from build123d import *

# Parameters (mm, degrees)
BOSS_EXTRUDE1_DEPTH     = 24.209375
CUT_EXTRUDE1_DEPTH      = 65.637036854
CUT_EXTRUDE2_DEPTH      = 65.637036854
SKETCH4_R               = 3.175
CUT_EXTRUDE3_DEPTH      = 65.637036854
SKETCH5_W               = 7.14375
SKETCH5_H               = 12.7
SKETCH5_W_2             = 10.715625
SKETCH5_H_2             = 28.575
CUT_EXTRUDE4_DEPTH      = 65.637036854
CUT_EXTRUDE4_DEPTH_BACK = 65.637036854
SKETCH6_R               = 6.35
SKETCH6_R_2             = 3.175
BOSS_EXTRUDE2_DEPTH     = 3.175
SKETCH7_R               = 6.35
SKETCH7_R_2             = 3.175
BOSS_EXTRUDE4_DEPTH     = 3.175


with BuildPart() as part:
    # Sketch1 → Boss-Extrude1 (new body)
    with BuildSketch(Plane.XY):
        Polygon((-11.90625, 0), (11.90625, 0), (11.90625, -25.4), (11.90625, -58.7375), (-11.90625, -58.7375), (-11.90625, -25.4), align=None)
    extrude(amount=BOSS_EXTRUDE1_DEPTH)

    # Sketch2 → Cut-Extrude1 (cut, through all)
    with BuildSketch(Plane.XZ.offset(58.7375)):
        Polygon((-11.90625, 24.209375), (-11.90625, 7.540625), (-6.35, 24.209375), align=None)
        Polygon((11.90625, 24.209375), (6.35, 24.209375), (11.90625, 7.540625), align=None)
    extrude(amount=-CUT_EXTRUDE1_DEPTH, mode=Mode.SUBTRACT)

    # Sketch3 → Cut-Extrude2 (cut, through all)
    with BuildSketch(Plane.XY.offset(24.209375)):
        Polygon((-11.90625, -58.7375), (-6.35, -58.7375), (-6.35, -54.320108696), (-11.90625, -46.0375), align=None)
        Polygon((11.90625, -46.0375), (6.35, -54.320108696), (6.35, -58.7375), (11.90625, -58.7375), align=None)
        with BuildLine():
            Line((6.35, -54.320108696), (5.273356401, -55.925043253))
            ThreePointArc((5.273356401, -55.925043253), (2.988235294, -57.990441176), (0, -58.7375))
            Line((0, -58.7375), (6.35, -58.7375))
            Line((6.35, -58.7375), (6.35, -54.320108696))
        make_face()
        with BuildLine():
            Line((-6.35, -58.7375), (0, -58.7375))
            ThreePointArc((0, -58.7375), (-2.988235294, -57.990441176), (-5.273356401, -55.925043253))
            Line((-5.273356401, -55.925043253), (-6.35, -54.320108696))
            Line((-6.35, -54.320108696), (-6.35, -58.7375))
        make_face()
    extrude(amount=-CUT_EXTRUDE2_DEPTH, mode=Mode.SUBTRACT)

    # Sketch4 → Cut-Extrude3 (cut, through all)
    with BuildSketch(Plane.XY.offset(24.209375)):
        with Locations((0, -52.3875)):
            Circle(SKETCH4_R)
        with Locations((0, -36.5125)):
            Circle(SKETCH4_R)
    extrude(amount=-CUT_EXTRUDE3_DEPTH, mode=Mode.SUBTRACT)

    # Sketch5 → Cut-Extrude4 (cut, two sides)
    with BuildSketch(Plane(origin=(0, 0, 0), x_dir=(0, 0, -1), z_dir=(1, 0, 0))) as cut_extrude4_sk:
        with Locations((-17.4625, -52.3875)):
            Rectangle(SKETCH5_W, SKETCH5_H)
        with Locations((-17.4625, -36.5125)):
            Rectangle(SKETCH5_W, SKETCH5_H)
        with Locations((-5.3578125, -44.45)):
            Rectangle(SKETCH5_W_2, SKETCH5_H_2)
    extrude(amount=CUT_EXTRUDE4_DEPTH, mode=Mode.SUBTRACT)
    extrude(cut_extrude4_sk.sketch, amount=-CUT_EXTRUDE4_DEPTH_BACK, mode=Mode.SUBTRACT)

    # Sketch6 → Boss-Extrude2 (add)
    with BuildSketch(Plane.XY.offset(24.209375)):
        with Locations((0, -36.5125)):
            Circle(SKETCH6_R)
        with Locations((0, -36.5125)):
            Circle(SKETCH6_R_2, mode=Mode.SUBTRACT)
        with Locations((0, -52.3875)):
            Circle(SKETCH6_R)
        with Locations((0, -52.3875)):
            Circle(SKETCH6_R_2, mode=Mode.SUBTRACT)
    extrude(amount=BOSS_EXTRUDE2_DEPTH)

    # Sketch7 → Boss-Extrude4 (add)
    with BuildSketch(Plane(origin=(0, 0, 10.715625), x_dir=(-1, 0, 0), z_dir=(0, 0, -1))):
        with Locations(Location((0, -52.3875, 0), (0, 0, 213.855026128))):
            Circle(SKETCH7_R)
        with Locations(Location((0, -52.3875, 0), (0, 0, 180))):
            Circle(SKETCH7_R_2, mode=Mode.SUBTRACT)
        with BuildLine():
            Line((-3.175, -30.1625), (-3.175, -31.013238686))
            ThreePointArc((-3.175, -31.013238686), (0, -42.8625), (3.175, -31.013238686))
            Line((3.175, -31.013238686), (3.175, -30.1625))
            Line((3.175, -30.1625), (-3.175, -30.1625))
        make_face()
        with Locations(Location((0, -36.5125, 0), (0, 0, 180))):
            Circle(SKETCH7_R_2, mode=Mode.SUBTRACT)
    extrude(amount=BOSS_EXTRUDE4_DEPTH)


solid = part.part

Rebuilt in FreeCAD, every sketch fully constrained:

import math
import FreeCAD as App
import Part
import Sketcher
Q = App.Units.Quantity

doc = App.newDocument("Part")
params = doc.addObject("Spreadsheet::Sheet", "Params")
for row, (alias, value) in enumerate([
    ("sketch1_width", "0.9375 in"),
    ("sketch1_height", "2.3125 in"),
    ("pad1_length", "0.953125 in"),
    ("sketch2_width", "0.21875 in"),
    ("sketch2_height", "0.65625 in"),
    ("sketch3_radius", "0.25 in"),
    ("sketch3_height", "0.5 in"),
    ("sketch3_width", "0.46875 in"),
    ("sketch4_diameter", "0.25 in"),
    ("sketch5_width", "0.5 in"),
    ("sketch5_width2", "1.125 in"),
    ("sketch5_height", "0.28125 in"),
    ("sketch5_height2", "0.421875 in"),
    ("sketch6_diameter", "0.5 in"),
    ("sketch6_diameter2", "0.25 in"),
    ("pad2_length", "0.125 in"),
    ("sketch7_diameter", "0.5 in"),
    ("sketch7_diameter2", "0.25 in"),
    ("sketch7_width", "0.25 in"),
    ("pad3_length", "0.125 in"),
], start=1):
    params.set(f"A{row}", alias)
    params.set(f"B{row}", "=" + value)
    params.setAlias(f"B{row}", alias)

body = doc.addObject("PartDesign::Body", "Body")

# Sketch on XY plane
sketch1 = body.newObject("Sketcher::SketchObject", "Sketch")
sketch1.AttachmentSupport = (doc.getObject("XY_Plane"), [""])
sketch1.MapMode = "FlatFace"
sketch1.addGeometry([
    Part.LineSegment(App.Vector(12, 0, 0), App.Vector(-12, 0, 0)),
    Part.LineSegment(App.Vector(-12, 0, 0), App.Vector(-12, -59, 0)),
    Part.LineSegment(App.Vector(-12, -59, 0), App.Vector(12, -59, 0)),
    Part.LineSegment(App.Vector(12, -59, 0), App.Vector(12, 0, 0)),
], False)
sketch1.addConstraint([
    Sketcher.Constraint("Coincident", 0, 2, 1, 1),
    Sketcher.Constraint("Coincident", 1, 2, 2, 1),
    Sketcher.Constraint("Coincident", 2, 2, 3, 1),
    Sketcher.Constraint("Coincident", 3, 2, 0, 1),
    Sketcher.Constraint("Horizontal", 0),
    Sketcher.Constraint("Vertical", 1),
    Sketcher.Constraint("Horizontal", 2),
    Sketcher.Constraint("Vertical", 3),
    Sketcher.Constraint("Symmetric", 0, 2, 3, 2, -1, 1),
    Sketcher.Constraint("DistanceX", 0, 2, 0, 1, Q("0.9375 in")),
    Sketcher.Constraint("DistanceY", 1, 2, 1, 1, Q("2.3125 in")),
])
sketch1.setExpression("Constraints[9]", "Params.sketch1_width")
sketch1.setExpression("Constraints[10]", "Params.sketch1_height")
pad1 = body.newObject("PartDesign::Pad", "Pad")
pad1.Profile = sketch1
pad1.setExpression("Length", "Params.pad1_length")

# Sketch on XZ plane
sketch2 = body.newObject("Sketcher::SketchObject", "Sketch001")
sketch2.AttachmentSupport = (doc.getObject("XZ_Plane"), [""])
sketch2.MapMode = "FlatFace"
sketch2.AttachmentOffset = App.Placement(App.Vector(0, 0, 2.3125 * 25.4), App.Rotation())
sketch2.addGeometry([
    Part.LineSegment(App.Vector(-12, 24, 0), App.Vector(-12, 8, 0)),  # 0
    Part.LineSegment(App.Vector(-12, 8, 0), App.Vector(-6, 24, 0)),  # 1
    Part.LineSegment(App.Vector(-6, 24, 0), App.Vector(-12, 24, 0)),  # 2
    Part.LineSegment(App.Vector(12, 24, 0), App.Vector(6, 24, 0)),  # 3
    Part.LineSegment(App.Vector(6, 24, 0), App.Vector(12, 8, 0)),  # 4
    Part.LineSegment(App.Vector(12, 8, 0), App.Vector(12, 24, 0)),  # 5
], False)
sketch2.addConstraint([
    Sketcher.Constraint("Coincident", 0, 2, 1, 1),
    Sketcher.Constraint("Coincident", 1, 2, 2, 1),
    Sketcher.Constraint("Coincident", 2, 2, 0, 1),
    Sketcher.Constraint("Coincident", 3, 2, 4, 1),
    Sketcher.Constraint("Coincident", 4, 2, 5, 1),
    Sketcher.Constraint("Coincident", 5, 2, 3, 1),
    Sketcher.Constraint("Vertical", 0),
    Sketcher.Constraint("Horizontal", 2),
    Sketcher.Constraint("Horizontal", 3),
    Sketcher.Constraint("Vertical", 5),
    Sketcher.Constraint("Symmetric", 1, 2, 3, 2, -2),
    Sketcher.Constraint("Symmetric", 0, 2, 4, 2, -2),
    Sketcher.Constraint("DistanceX", 1, 2, 3, 2, Q("0.5 in")),
    Sketcher.Constraint("DistanceX", 2, 2, 2, 1, Q("0.21875 in")),
    Sketcher.Constraint("DistanceY", 0, 2, 0, 1, Q("0.65625 in")),
    Sketcher.Constraint("DistanceY", -1, 1, 0, 2, Q("0.296875 in")),
])
sketch2.setExpression("Constraints[13]", "Params.sketch2_width")
sketch2.setExpression("Constraints[14]", "Params.sketch2_height")
pocket1 = body.newObject("PartDesign::Pocket", "Pocket")
pocket1.Profile = sketch2
pocket1.Type = "ThroughAll"

# Sketch on XY plane
sketch3 = body.newObject("Sketcher::SketchObject", "Sketch002")
sketch3.AttachmentSupport = (doc.getObject("XY_Plane"), [""])
sketch3.MapMode = "FlatFace"
sketch3.AttachmentOffset = App.Placement(App.Vector(0, 0, 0.953125 * 25.4), App.Rotation())
sketch3.addGeometry([
    Part.LineSegment(App.Vector(-11.9, -58.7, 0), App.Vector(0, -58.7, 0)),  # 0
    Part.ArcOfCircle(Part.Circle(App.Vector(0, -52.4, 0), App.Vector(0, 0, 1), 6.4), math.radians(-146), math.radians(-90)),  # 1
    Part.LineSegment(App.Vector(-5.3, -55.9, 0), App.Vector(-6.3, -54.3, 0)),  # 2
    Part.LineSegment(App.Vector(-6.3, -54.3, 0), App.Vector(-11.9, -46, 0)),  # 3
    Part.LineSegment(App.Vector(-11.9, -46, 0), App.Vector(-11.9, -58.7, 0)),  # 4
    Part.LineSegment(App.Vector(11.9, -46, 0), App.Vector(6.3, -54.3, 0)),  # 5
    Part.LineSegment(App.Vector(6.3, -54.3, 0), App.Vector(5.3, -55.9, 0)),  # 6
    Part.ArcOfCircle(Part.Circle(App.Vector(0, -52.4, 0), App.Vector(0, 0, 1), 6.4), math.radians(-90), math.radians(-34)),  # 7
    Part.LineSegment(App.Vector(0, -58.7, 0), App.Vector(11.9, -58.7, 0)),  # 8
    Part.LineSegment(App.Vector(11.9, -58.7, 0), App.Vector(11.9, -46, 0)),  # 9
], False)
sketch3.addConstraint([
    Sketcher.Constraint("Tangent", 0, 2, 1, 2),
    Sketcher.Constraint("Tangent", 1, 1, 2, 1),
    Sketcher.Constraint("Coincident", 2, 2, 3, 1),
    Sketcher.Constraint("Coincident", 3, 2, 4, 1),
    Sketcher.Constraint("Coincident", 4, 2, 0, 1),
    Sketcher.Constraint("Coincident", 5, 2, 6, 1),
    Sketcher.Constraint("Tangent", 6, 2, 7, 2),
    Sketcher.Constraint("Tangent", 7, 1, 8, 1),
    Sketcher.Constraint("Coincident", 8, 2, 9, 1),
    Sketcher.Constraint("Coincident", 9, 2, 5, 1),
    Sketcher.Constraint("Horizontal", 0),
    Sketcher.Constraint("Vertical", 4),
    Sketcher.Constraint("Horizontal", 8),
    Sketcher.Constraint("Vertical", 9),
    Sketcher.Constraint("Coincident", 7, 3, 1, 3),
    Sketcher.Constraint("Equal", 1, 7),
    Sketcher.Constraint("Symmetric", 2, 2, 5, 2, -2),
    Sketcher.Constraint("Symmetric", 3, 2, 9, 2, -2),
    Sketcher.Constraint("PointOnObject", 1, 3, -2),
    Sketcher.Constraint("Parallel", 2, 3),
    Sketcher.Constraint("Radius", 1, Q("0.25 in")),
    Sketcher.Constraint("DistanceY", 4, 2, 4, 1, Q("0.5 in")),
    Sketcher.Constraint("DistanceX", 2, 2, 5, 2, Q("0.5 in")),
    Sketcher.Constraint("DistanceX", 0, 1, 0, 2, Q("0.46875 in")),
    Sketcher.Constraint("DistanceY", 1, 3, -1, 1, Q("2.0625 in")),
])
sketch3.setExpression("Constraints[20]", "Params.sketch3_radius")
sketch3.setExpression("Constraints[21]", "Params.sketch3_height")
sketch3.setExpression("Constraints[23]", "Params.sketch3_width")
pocket2 = body.newObject("PartDesign::Pocket", "Pocket001")
pocket2.Profile = sketch3
pocket2.Type = "ThroughAll"

# Sketch on XY plane
sketch4 = body.newObject("Sketcher::SketchObject", "Sketch003")
sketch4.AttachmentSupport = (doc.getObject("XY_Plane"), [""])
sketch4.MapMode = "FlatFace"
sketch4.AttachmentOffset = App.Placement(App.Vector(0, 0, 0.953125 * 25.4), App.Rotation())
sketch4.addGeometry([
    Part.Circle(App.Vector(0, -52.4, 0), App.Vector(0, 0, 1), 3.2),
    Part.Circle(App.Vector(0, -36.5, 0), App.Vector(0, 0, 1), 3.2),
], False)
sketch4.addConstraint([
    Sketcher.Constraint("Equal", 0, 1),
    Sketcher.Constraint("PointOnObject", 0, 3, -2),
    Sketcher.Constraint("PointOnObject", 1, 3, -2),
    Sketcher.Constraint("Diameter", 0, Q("0.25 in")),
    Sketcher.Constraint("DistanceY", 0, 3, -1, 1, Q("2.0625 in")),
    Sketcher.Constraint("DistanceY", 1, 3, -1, 1, Q("1.4375 in")),
])
sketch4.setExpression("Constraints[3]", "Params.sketch4_diameter")
pocket3 = body.newObject("PartDesign::Pocket", "Pocket002")
pocket3.Profile = sketch4
pocket3.Type = "ThroughAll"

# Sketch on YZ plane
sketch5 = body.newObject("Sketcher::SketchObject", "Sketch004")
sketch5.AttachmentSupport = (doc.getObject("YZ_Plane"), [""])
sketch5.MapMode = "FlatFace"
sketch5.addGeometry([
    Part.LineSegment(App.Vector(-46, 21, 0), App.Vector(-59, 21, 0)),  # 0
    Part.LineSegment(App.Vector(-59, 21, 0), App.Vector(-59, 14, 0)),  # 1
    Part.LineSegment(App.Vector(-59, 14, 0), App.Vector(-46, 14, 0)),  # 2
    Part.LineSegment(App.Vector(-46, 14, 0), App.Vector(-46, 21, 0)),  # 3
    Part.LineSegment(App.Vector(-30, 21, 0), App.Vector(-43, 21, 0)),  # 4
    Part.LineSegment(App.Vector(-43, 21, 0), App.Vector(-43, 14, 0)),  # 5
    Part.LineSegment(App.Vector(-43, 14, 0), App.Vector(-30, 14, 0)),  # 6
    Part.LineSegment(App.Vector(-30, 14, 0), App.Vector(-30, 21, 0)),  # 7
    Part.LineSegment(App.Vector(-30, 11, 0), App.Vector(-59, 11, 0)),  # 8
    Part.LineSegment(App.Vector(-59, 11, 0), App.Vector(-59, 0, 0)),  # 9
    Part.LineSegment(App.Vector(-59, 0, 0), App.Vector(-30, 0, 0)),  # 10
    Part.LineSegment(App.Vector(-30, 0, 0), App.Vector(-30, 11, 0)),  # 11
], False)
sketch5.addConstraint([
    Sketcher.Constraint("Coincident", 0, 2, 1, 1),
    Sketcher.Constraint("Coincident", 1, 2, 2, 1),
    Sketcher.Constraint("Coincident", 2, 2, 3, 1),
    Sketcher.Constraint("Coincident", 3, 2, 0, 1),
    Sketcher.Constraint("Coincident", 4, 2, 5, 1),
    Sketcher.Constraint("Coincident", 5, 2, 6, 1),
    Sketcher.Constraint("Coincident", 6, 2, 7, 1),
    Sketcher.Constraint("Coincident", 7, 2, 4, 1),
    Sketcher.Constraint("Coincident", 8, 2, 9, 1),
    Sketcher.Constraint("Coincident", 9, 2, 10, 1),
    Sketcher.Constraint("Coincident", 10, 2, 11, 1),
    Sketcher.Constraint("Coincident", 11, 2, 8, 1),
    Sketcher.Constraint("Horizontal", 0),
    Sketcher.Constraint("Vertical", 1),
    Sketcher.Constraint("Horizontal", 2),
    Sketcher.Constraint("Vertical", 3),
    Sketcher.Constraint("Horizontal", 4),
    Sketcher.Constraint("Vertical", 5),
    Sketcher.Constraint("Horizontal", 6),
    Sketcher.Constraint("Vertical", 7),
    Sketcher.Constraint("Horizontal", 8),
    Sketcher.Constraint("Vertical", 9),
    Sketcher.Constraint("Horizontal", 10),
    Sketcher.Constraint("Vertical", 11),
    Sketcher.Constraint("PointOnObject", 9, 2, -1),
    Sketcher.Constraint("Horizontal", 3, 2, 4, 2),
    Sketcher.Constraint("Horizontal", 2, 2, 5, 2),
    Sketcher.Constraint("Vertical", 1, 2, 8, 2),
    Sketcher.Constraint("Vertical", 7, 2, 10, 2),
    Sketcher.Constraint("Equal", 2, 4),
    Sketcher.Constraint("DistanceX", 0, 2, 0, 1, Q("0.5 in")),
    Sketcher.Constraint("DistanceX", 8, 2, 8, 1, Q("1.125 in")),
    Sketcher.Constraint("DistanceY", 1, 2, 1, 1, Q("0.28125 in")),
    Sketcher.Constraint("DistanceY", 9, 2, 9, 1, Q("0.421875 in")),
    Sketcher.Constraint("DistanceX", 0, 2, -1, 1, Q("2.3125 in")),
    Sketcher.Constraint("DistanceY", -1, 1, 0, 2, Q("0.828125 in")),
])
sketch5.setExpression("Constraints[30]", "Params.sketch5_width")
sketch5.setExpression("Constraints[31]", "Params.sketch5_width2")
sketch5.setExpression("Constraints[32]", "Params.sketch5_height")
sketch5.setExpression("Constraints[33]", "Params.sketch5_height2")
pocket4 = body.newObject("PartDesign::Pocket", "Pocket003")
pocket4.Profile = sketch5
pocket4.Type = "ThroughAll"
pocket4.Midplane = True

# Sketch on XY plane
sketch6 = body.newObject("Sketcher::SketchObject", "Sketch005")
sketch6.AttachmentSupport = (doc.getObject("XY_Plane"), [""])
sketch6.MapMode = "FlatFace"
sketch6.AttachmentOffset = App.Placement(App.Vector(0, 0, 0.953125 * 25.4), App.Rotation())
sketch6.addGeometry([
    Part.Circle(App.Vector(0, -36.5, 0), App.Vector(0, 0, 1), 6.3),
    Part.Circle(App.Vector(0, -36.5, 0), App.Vector(0, 0, 1), 3.2),
    Part.Circle(App.Vector(0, -52.4, 0), App.Vector(0, 0, 1), 6.3),
    Part.Circle(App.Vector(0, -52.4, 0), App.Vector(0, 0, 1), 3.2),
], False)
sketch6.addConstraint([
    Sketcher.Constraint("Coincident", 1, 3, 0, 3),
    Sketcher.Constraint("Coincident", 3, 3, 2, 3),
    Sketcher.Constraint("Equal", 0, 2),
    Sketcher.Constraint("Equal", 1, 3),
    Sketcher.Constraint("PointOnObject", 0, 3, -2),
    Sketcher.Constraint("PointOnObject", 2, 3, -2),
    Sketcher.Constraint("Diameter", 0, Q("0.5 in")),
    Sketcher.Constraint("Diameter", 1, Q("0.25 in")),
    Sketcher.Constraint("DistanceY", 0, 3, -1, 1, Q("1.4375 in")),
    Sketcher.Constraint("DistanceY", 2, 3, -1, 1, Q("2.0625 in")),
])
sketch6.setExpression("Constraints[6]", "Params.sketch6_diameter")
sketch6.setExpression("Constraints[7]", "Params.sketch6_diameter2")
pad2 = body.newObject("PartDesign::Pad", "Pad001")
pad2.Profile = sketch6
pad2.setExpression("Length", "Params.pad2_length")

# Sketch on XY plane
sketch7 = body.newObject("Sketcher::SketchObject", "Sketch006")
sketch7.AttachmentSupport = (doc.getObject("XY_Plane"), [""])
sketch7.MapMode = "FlatFace"
sketch7.AttachmentOffset = App.Placement(App.Vector(0, 0, 0.421875 * 25.4), App.Rotation())
sketch7.addGeometry([
    Part.Circle(App.Vector(0, -52.4, 0), App.Vector(0, 0, 1), 6.3),  # 0
    Part.Circle(App.Vector(0, -52.4, 0), App.Vector(0, 0, 1), 3.2),  # 1
    Part.LineSegment(App.Vector(3.2, -30.2, 0), App.Vector(3.2, -31, 0)),  # 2
    Part.ArcOfCircle(Part.Circle(App.Vector(0, -36.5, 0), App.Vector(0, 0, 1), 6.3), math.radians(120), math.radians(420)),  # 3
    Part.LineSegment(App.Vector(-3.2, -31, 0), App.Vector(-3.2, -30.2, 0)),  # 4
    Part.LineSegment(App.Vector(-3.2, -30.2, 0), App.Vector(3.2, -30.2, 0)),  # 5
    Part.Circle(App.Vector(0, -36.5, 0), App.Vector(0, 0, 1), 3.2),  # 6
], False)
sketch7.addConstraint([
    Sketcher.Constraint("Coincident", 2, 2, 3, 2),
    Sketcher.Constraint("Coincident", 3, 1, 4, 1),
    Sketcher.Constraint("Coincident", 4, 2, 5, 1),
    Sketcher.Constraint("Coincident", 5, 2, 2, 1),
    Sketcher.Constraint("Vertical", 2),
    Sketcher.Constraint("Vertical", 4),
    Sketcher.Constraint("Horizontal", 5),
    Sketcher.Constraint("Coincident", 1, 3, 0, 3),
    Sketcher.Constraint("Coincident", 6, 3, 3, 3),
    Sketcher.Constraint("Equal", 0, 3),
    Sketcher.Constraint("Equal", 1, 6),
    Sketcher.Constraint("Symmetric", 2, 2, 3, 1, -2),
    Sketcher.Constraint("PointOnObject", 0, 3, -2),
    Sketcher.Constraint("Diameter", 0, Q("0.5 in")),
    Sketcher.Constraint("Diameter", 1, Q("0.25 in")),
    Sketcher.Constraint("DistanceX", 5, 1, 5, 2, Q("0.25 in")),
    Sketcher.Constraint("DistanceY", 3, 3, 4, 2, Q("0.25 in")),
    Sketcher.Constraint("DistanceY", 0, 3, -1, 1, Q("2.0625 in")),
    Sketcher.Constraint("DistanceY", 3, 3, -1, 1, Q("1.4375 in")),
])
sketch7.setExpression("Constraints[13]", "Params.sketch7_diameter")
sketch7.setExpression("Constraints[14]", "Params.sketch7_diameter2")
sketch7.setExpression("Constraints[15]", "Params.sketch7_width")
pad3 = body.newObject("PartDesign::Pad", "Pad002")
pad3.Profile = sketch7
pad3.setExpression("Length", "Params.pad3_length")
pad3.Reversed = True

doc.recompute()
